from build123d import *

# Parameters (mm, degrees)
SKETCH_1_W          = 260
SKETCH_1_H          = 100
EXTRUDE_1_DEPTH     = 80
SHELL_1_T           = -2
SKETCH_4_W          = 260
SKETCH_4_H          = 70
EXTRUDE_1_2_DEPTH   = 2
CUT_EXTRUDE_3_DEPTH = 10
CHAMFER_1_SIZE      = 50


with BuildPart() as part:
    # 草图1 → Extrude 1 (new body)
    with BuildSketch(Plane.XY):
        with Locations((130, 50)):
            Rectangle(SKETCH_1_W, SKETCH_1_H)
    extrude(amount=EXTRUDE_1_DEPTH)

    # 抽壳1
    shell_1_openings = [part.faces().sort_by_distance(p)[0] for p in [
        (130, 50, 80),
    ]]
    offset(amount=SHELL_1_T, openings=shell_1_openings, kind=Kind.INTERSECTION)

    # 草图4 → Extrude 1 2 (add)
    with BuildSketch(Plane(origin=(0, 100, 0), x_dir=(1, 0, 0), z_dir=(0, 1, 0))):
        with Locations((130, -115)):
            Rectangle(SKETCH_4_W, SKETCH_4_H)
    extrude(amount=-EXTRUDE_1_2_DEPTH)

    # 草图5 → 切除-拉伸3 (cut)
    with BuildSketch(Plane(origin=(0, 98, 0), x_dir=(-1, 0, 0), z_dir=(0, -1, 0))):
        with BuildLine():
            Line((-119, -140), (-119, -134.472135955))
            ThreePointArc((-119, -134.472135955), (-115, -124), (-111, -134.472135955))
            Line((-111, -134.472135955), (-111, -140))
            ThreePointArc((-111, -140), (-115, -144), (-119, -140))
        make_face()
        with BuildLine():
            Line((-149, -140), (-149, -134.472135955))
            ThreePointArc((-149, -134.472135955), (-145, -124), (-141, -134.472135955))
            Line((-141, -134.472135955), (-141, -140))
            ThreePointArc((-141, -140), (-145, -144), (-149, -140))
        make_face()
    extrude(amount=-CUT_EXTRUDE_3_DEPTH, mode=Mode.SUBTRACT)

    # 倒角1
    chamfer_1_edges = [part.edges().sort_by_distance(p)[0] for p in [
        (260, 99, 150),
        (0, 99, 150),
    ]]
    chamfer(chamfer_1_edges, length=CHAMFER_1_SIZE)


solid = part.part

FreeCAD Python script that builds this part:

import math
import FreeCAD as App
import Part
import Sketcher
from FreeCAD import Vector
Q = App.Units.Quantity


def edges_at(feature, points):
    """Names of the edges that pass closest to the given points."""
    edges = feature.Shape.Edges
    near = lambda p: min(range(len(edges)), key=lambda i: edges[i].distToShape(Part.Vertex(*p))[0])
    return sorted({f"Edge{near(p) + 1}" for p in points})


def faces_at(feature, points):
    """Names of the faces that lie closest to the given points."""
    faces = feature.Shape.Faces
    near = lambda p: min(range(len(faces)), key=lambda i: faces[i].distToShape(Part.Vertex(*p))[0])
    return sorted({f"Face{near(p) + 1}" for p in points})

doc = App.newDocument("Part")
body = doc.addObject("PartDesign::Body", "Body")

# Sketch on XY plane
sketch1 = body.newObject("Sketcher::SketchObject", "Sketch")
sketch1.AttachmentSupport = (doc.getObject("XY_Plane"), [""])
sketch1.MapMode = "FlatFace"
sketch1.addGeometry([
    Part.LineSegment(Vector(0, 100, 0), Vector(0, 0, 0)),
    Part.LineSegment(Vector(0, 0, 0), Vector(260, 0, 0)),
    Part.LineSegment(Vector(260, 0, 0), Vector(260, 100, 0)),
    Part.LineSegment(Vector(260, 100, 0), Vector(0, 100, 0)),
], False)
sketch1.addConstraint([
    Sketcher.Constraint("Coincident", 0, 2, 1, 1),
    Sketcher.Constraint("Coincident", 1, 2, 2, 1),
    Sketcher.Constraint("Coincident", 2, 2, 3, 1),
    Sketcher.Constraint("Coincident", 3, 2, 0, 1),
    Sketcher.Constraint("Vertical", 0),
    Sketcher.Constraint("Horizontal", 1),
    Sketcher.Constraint("Vertical", 2),
    Sketcher.Constraint("Horizontal", 3),
    Sketcher.Constraint("Coincident", 0, 2, -1, 1),
    Sketcher.Constraint("DistanceX", 1, 1, 1, 2, Q("260 mm")),
    Sketcher.Constraint("DistanceY", 0, 2, 0, 1, Q("100 mm")),
])
pad1 = body.newObject("PartDesign::Pad", "Pad")
pad1.Profile = sketch1
pad1.Length = 80
doc.recompute()

thickness = body.newObject("PartDesign::Thickness", "Thickness")
thickness.Base = (pad1, faces_at(pad1, [(130, 50, 80)]))
thickness.Value = 2
thickness.Reversed = True
thickness.Join = "Intersection"

# Sketch on XZ plane
sketch2 = body.newObject("Sketcher::SketchObject", "Sketch001")
sketch2.AttachmentSupport = (doc.getObject("XZ_Plane"), [""])
sketch2.MapMode = "FlatFace"
sketch2.AttachmentOffset = App.Placement(Vector(0, 0, -100), App.Rotation())
sketch2.addGeometry([
    Part.LineSegment(Vector(0, 80, 0), Vector(0, 150, 0)),
    Part.LineSegment(Vector(0, 150, 0), Vector(260, 150, 0)),
    Part.LineSegment(Vector(260, 150, 0), Vector(260, 80, 0)),
    Part.LineSegment(Vector(260, 80, 0), Vector(0, 80, 0)),
], False)
sketch2.addConstraint([
    Sketcher.Constraint("Coincident", 0, 2, 1, 1),
    Sketcher.Constraint("Coincident", 1, 2, 2, 1),
    Sketcher.Constraint("Coincident", 2, 2, 3, 1),
    Sketcher.Constraint("Coincident", 3, 2, 0, 1),
    Sketcher.Constraint("Vertical", 0),
    Sketcher.Constraint("Horizontal", 1),
    Sketcher.Constraint("Vertical", 2),
    Sketcher.Constraint("Horizontal", 3),
    Sketcher.Constraint("PointOnObject", 0, 2, -2),
    Sketcher.Constraint("DistanceX", 1, 1, 1, 2, Q("260 mm")),
    Sketcher.Constraint("DistanceY", 0, 1, 0, 2, Q("70 mm")),
    Sketcher.Constraint("DistanceY", -1, 1, 0, 2, Q("150 mm")),
])
pad2 = body.newObject("PartDesign::Pad", "Pad001")
pad2.Profile = sketch2
pad2.Length = 2

# Sketch on XZ plane
sketch3 = body.newObject("Sketcher::SketchObject", "Sketch002")
sketch3.AttachmentSupport = (doc.getObject("XZ_Plane"), [""])
sketch3.MapMode = "FlatFace"
sketch3.AttachmentOffset = App.Placement(Vector(0, 0, -98), App.Rotation())
sketch3.addGeometry([
    Part.LineSegment(Vector(119, 134.5, 0), Vector(119, 140, 0)),  # 0
    Part.ArcOfCircle(Part.Circle(Vector(115, 140, 0), Vector(0, 0, 1), 4), math.radians(0), math.radians(180)),  # 1
    Part.LineSegment(Vector(111, 140, 0), Vector(111, 134.5, 0)),  # 2
    Part.ArcOfCircle(Part.Circle(Vector(115, 130, 0), Vector(0, 0, 1), 6), math.radians(132), math.radians(408)),  # 3
    Part.LineSegment(Vector(149, 134.5, 0), Vector(149, 140, 0)),  # 4
    Part.ArcOfCircle(Part.Circle(Vector(145, 140, 0), Vector(0, 0, 1), 4), math.radians(0), math.radians(180)),  # 5
    Part.LineSegment(Vector(141, 140, 0), Vector(141, 134.5, 0)),  # 6
    Part.ArcOfCircle(Part.Circle(Vector(145, 130, 0), Vector(0, 0, 1), 6), math.radians(132), math.radians(408)),  # 7
], False)
sketch3.addConstraint([
    Sketcher.Constraint("Tangent", 0, 2, 1, 1),
    Sketcher.Constraint("Tangent", 1, 2, 2, 1),
    Sketcher.Constraint("Coincident", 2, 2, 3, 1),
    Sketcher.Constraint("Coincident", 3, 2, 0, 1),
    Sketcher.Constraint("Tangent", 4, 2, 5, 1),
    Sketcher.Constraint("Tangent", 5, 2, 6, 1),
    Sketcher.Constraint("Coincident", 6, 2, 7, 1),
    Sketcher.Constraint("Coincident", 7, 2, 4, 1),
    Sketcher.Constraint("Vertical", 0),
    Sketcher.Constraint("Vertical", 2),
    Sketcher.Constraint("Vertical", 4),
    Sketcher.Constraint("Vertical", 6),
    Sketcher.Constraint("Equal", 1, 5),
    Sketcher.Constraint("Equal", 3, 7),
    Sketcher.Constraint("Horizontal", 1, 3, 5, 3),
    Sketcher.Constraint("Horizontal", 3, 3, 7, 3),
    Sketcher.Constraint("Horizontal", 2, 2, 3, 2),
    Sketcher.Constraint("Horizontal", 3, 2, 6, 2),
    Sketcher.Constraint("Radius", 1, Q("4 mm")),
    Sketcher.Constraint("Radius", 3, Q("6 mm")),
    Sketcher.Constraint("DistanceX", -1, 1, 1, 3, Q("115 mm")),
    Sketcher.Constraint("DistanceY", -1, 1, 1, 3, Q("140 mm")),
    Sketcher.Constraint("DistanceY", -1, 1, 3, 3, Q("130 mm")),
    Sketcher.Constraint("DistanceX", -1, 1, 5, 3, Q("145 mm")),
])
pocket1 = body.newObject("PartDesign::Pocket", "Pocket")
pocket1.Profile = sketch3
pocket1.Length = 10
doc.recompute()

chamfer = body.newObject("PartDesign::Chamfer", "Chamfer")
chamfer.Base = (pocket1, edges_at(pocket1, [(260, 99, 150), (0, 99, 150)]))
chamfer.Size = 50

doc.recompute()
